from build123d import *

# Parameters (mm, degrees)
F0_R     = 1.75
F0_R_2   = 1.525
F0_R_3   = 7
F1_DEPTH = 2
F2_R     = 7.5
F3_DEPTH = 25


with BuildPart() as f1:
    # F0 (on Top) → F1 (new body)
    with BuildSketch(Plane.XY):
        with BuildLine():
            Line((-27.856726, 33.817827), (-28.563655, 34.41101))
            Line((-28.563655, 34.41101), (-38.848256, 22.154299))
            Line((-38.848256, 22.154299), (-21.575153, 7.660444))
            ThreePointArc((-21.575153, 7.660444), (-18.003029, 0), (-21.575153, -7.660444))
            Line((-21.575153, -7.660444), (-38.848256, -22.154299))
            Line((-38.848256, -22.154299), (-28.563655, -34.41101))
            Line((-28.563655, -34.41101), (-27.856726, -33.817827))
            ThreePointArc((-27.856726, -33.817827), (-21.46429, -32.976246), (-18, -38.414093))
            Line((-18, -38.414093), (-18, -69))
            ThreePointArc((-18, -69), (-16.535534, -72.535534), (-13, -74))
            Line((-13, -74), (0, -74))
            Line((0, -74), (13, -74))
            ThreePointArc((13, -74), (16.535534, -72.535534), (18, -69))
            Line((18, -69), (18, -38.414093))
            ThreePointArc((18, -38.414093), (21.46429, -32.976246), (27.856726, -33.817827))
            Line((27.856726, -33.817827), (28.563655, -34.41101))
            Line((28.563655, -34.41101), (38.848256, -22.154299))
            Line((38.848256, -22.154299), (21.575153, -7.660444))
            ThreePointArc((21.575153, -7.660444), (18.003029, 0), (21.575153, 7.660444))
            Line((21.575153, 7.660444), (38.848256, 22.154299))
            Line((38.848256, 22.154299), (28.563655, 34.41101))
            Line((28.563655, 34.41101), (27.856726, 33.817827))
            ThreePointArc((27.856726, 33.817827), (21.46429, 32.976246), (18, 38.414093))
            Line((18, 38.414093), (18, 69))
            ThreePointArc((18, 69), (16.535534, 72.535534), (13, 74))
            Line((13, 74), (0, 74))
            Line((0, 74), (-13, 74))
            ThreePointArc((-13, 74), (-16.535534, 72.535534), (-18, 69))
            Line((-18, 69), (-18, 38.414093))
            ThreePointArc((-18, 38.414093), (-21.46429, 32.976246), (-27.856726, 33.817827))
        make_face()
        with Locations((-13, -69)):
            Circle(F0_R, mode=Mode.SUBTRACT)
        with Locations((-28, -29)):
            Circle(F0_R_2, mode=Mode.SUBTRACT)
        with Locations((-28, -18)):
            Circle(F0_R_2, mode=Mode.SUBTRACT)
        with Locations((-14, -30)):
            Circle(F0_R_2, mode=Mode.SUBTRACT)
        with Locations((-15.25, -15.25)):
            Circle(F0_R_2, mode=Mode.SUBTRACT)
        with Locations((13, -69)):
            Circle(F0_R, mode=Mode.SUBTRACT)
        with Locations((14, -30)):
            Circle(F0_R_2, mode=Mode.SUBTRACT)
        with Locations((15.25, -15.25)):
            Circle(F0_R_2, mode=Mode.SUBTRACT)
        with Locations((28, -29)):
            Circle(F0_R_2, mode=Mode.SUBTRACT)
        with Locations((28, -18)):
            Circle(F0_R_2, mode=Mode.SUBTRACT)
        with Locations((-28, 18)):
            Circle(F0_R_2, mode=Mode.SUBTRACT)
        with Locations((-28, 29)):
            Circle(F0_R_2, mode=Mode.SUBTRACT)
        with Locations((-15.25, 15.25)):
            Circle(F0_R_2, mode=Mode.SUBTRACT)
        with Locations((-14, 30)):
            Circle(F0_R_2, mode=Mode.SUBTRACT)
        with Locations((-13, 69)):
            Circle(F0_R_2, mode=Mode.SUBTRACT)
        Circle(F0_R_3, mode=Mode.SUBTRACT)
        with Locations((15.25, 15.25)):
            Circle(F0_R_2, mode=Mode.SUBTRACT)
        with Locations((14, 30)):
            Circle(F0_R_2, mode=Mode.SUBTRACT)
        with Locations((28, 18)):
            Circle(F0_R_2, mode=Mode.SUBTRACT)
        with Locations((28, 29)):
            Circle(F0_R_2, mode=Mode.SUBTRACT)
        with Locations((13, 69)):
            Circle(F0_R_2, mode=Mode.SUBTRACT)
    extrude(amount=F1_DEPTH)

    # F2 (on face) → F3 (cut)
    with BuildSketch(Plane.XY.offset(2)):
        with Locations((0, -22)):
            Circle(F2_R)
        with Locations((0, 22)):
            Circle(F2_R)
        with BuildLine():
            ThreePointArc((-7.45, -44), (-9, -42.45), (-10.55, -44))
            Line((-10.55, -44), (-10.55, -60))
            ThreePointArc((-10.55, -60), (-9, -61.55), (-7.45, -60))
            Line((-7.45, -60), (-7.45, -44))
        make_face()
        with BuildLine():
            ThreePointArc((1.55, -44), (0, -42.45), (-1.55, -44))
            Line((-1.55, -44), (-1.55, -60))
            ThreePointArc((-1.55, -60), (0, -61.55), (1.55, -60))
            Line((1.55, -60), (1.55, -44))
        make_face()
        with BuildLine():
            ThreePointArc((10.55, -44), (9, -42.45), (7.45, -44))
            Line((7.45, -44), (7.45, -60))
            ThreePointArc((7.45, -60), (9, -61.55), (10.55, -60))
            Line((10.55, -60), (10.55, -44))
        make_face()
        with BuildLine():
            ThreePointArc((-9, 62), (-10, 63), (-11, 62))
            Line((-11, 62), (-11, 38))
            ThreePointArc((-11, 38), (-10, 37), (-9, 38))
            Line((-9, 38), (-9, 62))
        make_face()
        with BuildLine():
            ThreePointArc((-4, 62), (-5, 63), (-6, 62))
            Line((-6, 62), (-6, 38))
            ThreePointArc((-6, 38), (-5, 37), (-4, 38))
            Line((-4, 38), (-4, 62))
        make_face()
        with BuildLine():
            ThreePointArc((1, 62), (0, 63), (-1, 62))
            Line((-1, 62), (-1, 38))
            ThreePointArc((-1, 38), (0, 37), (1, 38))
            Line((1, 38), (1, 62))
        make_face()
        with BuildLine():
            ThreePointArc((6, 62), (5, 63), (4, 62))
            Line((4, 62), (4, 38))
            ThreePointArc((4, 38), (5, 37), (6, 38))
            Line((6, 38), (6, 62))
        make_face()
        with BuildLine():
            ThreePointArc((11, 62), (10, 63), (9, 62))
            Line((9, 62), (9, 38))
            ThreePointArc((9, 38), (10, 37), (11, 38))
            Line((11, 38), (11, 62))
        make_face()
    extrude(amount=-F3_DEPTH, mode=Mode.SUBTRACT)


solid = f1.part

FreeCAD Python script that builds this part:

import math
import FreeCAD as App
import Part
import Sketcher

V = App.Vector
Q = App.Units.Quantity

doc = App.newDocument("Part")
params = doc.addObject("Spreadsheet::Sheet", "Params")
for row, (alias, value) in enumerate([
    ("sketch1_diameter", "14 mm"),
    ("sketch1_radius", "9.999999 mm"),
    ("sketch1_radius2", "5.999999 mm"),
    ("sketch1_radius3", "5 mm"),
    ("sketch1_diameter2", "3.5 mm"),
    ("pad1_length", "2 mm"),
    ("sketch2_diameter", "15 mm"),
    ("sketch2_radius", "1 mm"),
    ("sketch2_height", "16 mm"),
    ("sketch2_height2", "24 mm"),
    ("sketch2_radius2", "1.55 mm"),
    ("pocket1_length", "25 mm"),
], start=1):
    params.set(f"A{row}", alias)
    params.set(f"B{row}", "=" + value)
    params.setAlias(f"B{row}", alias)

body = doc.addObject("PartDesign::Body", "Body")

sketch1 = doc.addObject("Sketcher::SketchObject", "Sketch")
body.addObject(sketch1)
sketch1.AttachmentSupport = (doc.XY_Plane, [""])
sketch1.MapMode = "FlatFace"
sketch1.addGeometry([
    Part.LineSegment(V(-27.9, 33.8, 0), V(-28.6, 34.4, 0)),
    Part.LineSegment(V(-28.6, 34.4, 0), V(-38.8, 22.2, 0)),
    Part.LineSegment(V(-38.8, 22.2, 0), V(-21.6, 7.7, 0)),
    Part.ArcOfCircle(Part.Circle(V(-28, 0, 0), V(0, 0, 1), 10), math.radians(-50), math.radians(50)),
    Part.LineSegment(V(-21.6, -7.7, 0), V(-38.8, -22.2, 0)),
    Part.LineSegment(V(-38.8, -22.2, 0), V(-28.6, -34.4, 0)),
    Part.LineSegment(V(-28.6, -34.4, 0), V(-27.9, -33.8, 0)),
    Part.ArcOfCircle(Part.Circle(V(-24, -38.4, 0), V(0, 0, 1), 6), math.radians(0), math.radians(130)),
    Part.LineSegment(V(-18, -38.4, 0), V(-18, -69, 0)),
    Part.ArcOfCircle(Part.Circle(V(-13, -69, 0), V(0, 0, 1), 5), math.radians(180), math.radians(270)),
    Part.LineSegment(V(-13, -74, 0), V(13, -74, 0)),
    Part.ArcOfCircle(Part.Circle(V(13, -69, 0), V(0, 0, 1), 5), math.radians(-90), math.radians(0)),
    Part.LineSegment(V(18, -69, 0), V(18, -38.4, 0)),
    Part.ArcOfCircle(Part.Circle(V(24, -38.4, 0), V(0, 0, 1), 6), math.radians(50), math.radians(180)),
    Part.LineSegment(V(27.9, -33.8, 0), V(28.6, -34.4, 0)),
    Part.LineSegment(V(28.6, -34.4, 0), V(38.8, -22.2, 0)),
    Part.LineSegment(V(38.8, -22.2, 0), V(21.6, -7.7, 0)),
    Part.ArcOfCircle(Part.Circle(V(28, 0, 0), V(0, 0, 1), 10), math.radians(130), math.radians(230)),
    Part.LineSegment(V(21.6, 7.7, 0), V(38.8, 22.2, 0)),
    Part.LineSegment(V(38.8, 22.2, 0), V(28.6, 34.4, 0)),
    Part.LineSegment(V(28.6, 34.4, 0), V(27.9, 33.8, 0)),
    Part.ArcOfCircle(Part.Circle(V(24, 38.4, 0), V(0, 0, 1), 6), math.radians(180), math.radians(310)),
    Part.LineSegment(V(18, 38.4, 0), V(18, 69, 0)),
    Part.ArcOfCircle(Part.Circle(V(13, 69, 0), V(0, 0, 1), 5), math.radians(0), math.radians(90)),
    Part.LineSegment(V(13, 74, 0), V(-13, 74, 0)),
    Part.ArcOfCircle(Part.Circle(V(-13, 69, 0), V(0, 0, 1), 5), math.radians(90), math.radians(180)),
    Part.LineSegment(V(-18, 69, 0), V(-18, 38.4, 0)),
    Part.ArcOfCircle(Part.Circle(V(-24, 38.4, 0), V(0, 0, 1), 6), math.radians(-130), math.radians(0)),
    Part.Circle(V(-13, -69, 0), V(0, 0, 1), 1.8),
    Part.Circle(V(-28, -29, 0), V(0, 0, 1), 1.5),
    Part.Circle(V(-28, -18, 0), V(0, 0, 1), 1.5),
    Part.Circle(V(-15.2, -15.2, 0), V(0, 0, 1), 1.5),
    Part.Circle(V(-14, -30, 0), V(0, 0, 1), 1.5),
    Part.Circle(V(13, -69, 0), V(0, 0, 1), 1.8),
    Part.Circle(V(14, -30, 0), V(0, 0, 1), 1.5),
    Part.Circle(V(28, -29, 0), V(0, 0, 1), 1.5),
    Part.Circle(V(28, -18, 0), V(0, 0, 1), 1.5),
    Part.Circle(V(15.2, -15.2, 0), V(0, 0, 1), 1.5),
    Part.Circle(V(-15.2, 15.2, 0), V(0, 0, 1), 1.5),
    Part.Circle(V(-28, 18, 0), V(0, 0, 1), 1.5),
    Part.Circle(V(-28, 29, 0), V(0, 0, 1), 1.5),
    Part.Circle(V(0, 0, 0), V(0, 0, 1), 7),
    Part.Circle(V(-14, 30, 0), V(0, 0, 1), 1.5),
    Part.Circle(V(-13, 69, 0), V(0, 0, 1), 1.5),
    Part.Circle(V(14, 30, 0), V(0, 0, 1), 1.5),
    Part.Circle(V(15.2, 15.2, 0), V(0, 0, 1), 1.5),
    Part.Circle(V(28, 18, 0), V(0, 0, 1), 1.5),
    Part.Circle(V(28, 29, 0), V(0, 0, 1), 1.5),
    Part.Circle(V(13, 69, 0), V(0, 0, 1), 1.5),
], False)
sketch1.addConstraint([
    Sketcher.Constraint("Coincident", 0, 2, 1, 1),
    Sketcher.Constraint("Coincident", 1, 2, 2, 1),
    Sketcher.Constraint("Tangent", 2, 2, 3, 2),
    Sketcher.Constraint("Tangent", 3, 1, 4, 1),
    Sketcher.Constraint("Coincident", 4, 2, 5, 1),
    Sketcher.Constraint("Coincident", 5, 2, 6, 1),
    Sketcher.Constraint("Tangent", 6, 2, 7, 2),
    Sketcher.Constraint("Tangent", 7, 1, 8, 1),
    Sketcher.Constraint("Tangent", 8, 2, 9, 1),
    Sketcher.Constraint("Tangent", 9, 2, 10, 1),
    Sketcher.Constraint("Tangent", 10, 2, 11, 1),
    Sketcher.Constraint("Tangent", 11, 2, 12, 1),
    Sketcher.Constraint("Tangent", 12, 2, 13, 2),
    Sketcher.Constraint("Tangent", 13, 1, 14, 1),
    Sketcher.Constraint("Coincident", 14, 2, 15, 1),
    Sketcher.Constraint("Coincident", 15, 2, 16, 1),
    Sketcher.Constraint("Tangent", 16, 2, 17, 2),
    Sketcher.Constraint("Tangent", 17, 1, 18, 1),
    Sketcher.Constraint("Coincident", 18, 2, 19, 1),
    Sketcher.Constraint("Coincident", 19, 2, 20, 1),
    Sketcher.Constraint("Tangent", 20, 2, 21, 2),
    Sketcher.Constraint("Tangent", 21, 1, 22, 1),
    Sketcher.Constraint("Tangent", 22, 2, 23, 1),
    Sketcher.Constraint("Tangent", 23, 2, 24, 1),
    Sketcher.Constraint("Tangent", 24, 2, 25, 1),
    Sketcher.Constraint("Tangent", 25, 2, 26, 1),
    Sketcher.Constraint("Tangent", 26, 2, 27, 2),
    Sketcher.Constraint("Tangent", 27, 1, 0, 1),
    Sketcher.Constraint("Vertical", 8),
    Sketcher.Constraint("Horizontal", 10),
    Sketcher.Constraint("Vertical", 12),
    Sketcher.Constraint("Vertical", 22),
    Sketcher.Constraint("Horizontal", 24),
    Sketcher.Constraint("Vertical", 26),
    Sketcher.Constraint("Coincident", 41, 3, -1, 1),
    Sketcher.Constraint("Coincident", 28, 3, 9, 3),
    Sketcher.Constraint("Coincident", 33, 3, 11, 3),
    Sketcher.Constraint("Coincident", 43, 3, 25, 3),
    Sketcher.Constraint("Coincident", 48, 3, 23, 3),
    Sketcher.Constraint("Equal", 9, 11),
    Sketcher.Constraint("Equal", 7, 13),
    Sketcher.Constraint("Equal", 3, 17),
    Sketcher.Constraint("Equal", 13, 21),
    Sketcher.Constraint("Equal", 11, 23),
    Sketcher.Constraint("Equal", 23, 25),
    Sketcher.Constraint("Equal", 21, 27),
    Sketcher.Constraint("Equal", 29, 30),
    Sketcher.Constraint("Equal", 30, 31),
    Sketcher.Constraint("Equal", 31, 32),
    Sketcher.Constraint("Equal", 28, 33),
    Sketcher.Constraint("Equal", 32, 34),
    Sketcher.Constraint("Equal", 34, 35),
    Sketcher.Constraint("Equal", 35, 36),
    Sketcher.Constraint("Equal", 36, 37),
    Sketcher.Constraint("Equal", 37, 38),
    Sketcher.Constraint("Equal", 38, 39),
    Sketcher.Constraint("Equal", 39, 40),
    Sketcher.Constraint("Equal", 40, 42),
    Sketcher.Constraint("Equal", 42, 43),
    Sketcher.Constraint("Equal", 43, 44),
    Sketcher.Constraint("Equal", 44, 45),
    Sketcher.Constraint("Equal", 45, 46),
    Sketcher.Constraint("Equal", 46, 47),
    Sketcher.Constraint("Equal", 47, 48),
    Sketcher.Constraint("Symmetric", 3, 3, 17, 3, -1, 1),
    Sketcher.Constraint("Symmetric", 7, 3, 21, 3, -1, 1),
    Sketcher.Constraint("Symmetric", 11, 3, 25, 3, -1, 1),
    Sketcher.Constraint("Symmetric", 37, 3, 38, 3, -1, 1),
    Sketcher.Constraint("Symmetric", 36, 3, 39, 3, -1, 1),
    Sketcher.Constraint("Symmetric", 35, 3, 40, 3, -1, 1),
    Sketcher.Constraint("Symmetric", 34, 3, 42, 3, -1, 1),
    Sketcher.Constraint("Symmetric", 32, 3, 44, 3, -1, 1),
    Sketcher.Constraint("Symmetric", 31, 3, 45, 3, -1, 1),
    Sketcher.Constraint("Symmetric", 30, 3, 46, 3, -1, 1),
    Sketcher.Constraint("Symmetric", 29, 3, 47, 3, -1, 1),
    Sketcher.Constraint("Symmetric", 0, 2, 14, 2, -1, 1),
    Sketcher.Constraint("Symmetric", 1, 2, 15, 2, -1, 1),
    Sketcher.Constraint("Symmetric", 4, 2, 18, 2, -1, 1),
    Sketcher.Constraint("Symmetric", 5, 2, 19, 2, -1, 1),
    Sketcher.Constraint("Symmetric", 7, 3, 13, 3, -2),
    Sketcher.Constraint("Symmetric", 32, 3, 34, 3, -2),
    Sketcher.Constraint("Symmetric", 29, 3, 35, 3, -2),
    Sketcher.Constraint("Symmetric", 30, 3, 36, 3, -2),
    Sketcher.Constraint("Symmetric", 31, 3, 37, 3, -2),
    Sketcher.Constraint("Symmetric", 5, 2, 14, 2, -2),
    Sketcher.Constraint("Symmetric", 4, 2, 15, 2, -2),
    Sketcher.Constraint("PointOnObject", 3, 3, -1),
    Sketcher.Constraint("Perpendicular", 0, 1),
    Sketcher.Constraint("Perpendicular", 1, 2),
    Sketcher.Constraint("Perpendicular", 5, 6),
    Sketcher.Constraint("Vertical", 29, 3, 30, 3),
    Sketcher.Constraint("Diameter", 41, 14.0),
    Sketcher.Constraint("Radius", 3, 9.999999),
    Sketcher.Constraint("Radius", 7, 5.999999),
    Sketcher.Constraint("Radius", 9, 5.0),
    Sketcher.Constraint("Diameter", 28, 3.5),
    Sketcher.Constraint("Diameter", 29, 3.05),
    Sketcher.Constraint("DistanceX", 10, 1, 10, 2, 26.0),
    Sketcher.Constraint("Angle", 1, Q("-129.999998 deg")),
    Sketcher.Constraint("Distance", 1, 15.999999),
    Sketcher.Constraint("DistanceY", 9, 3, -1, 1, 69.0),
    Sketcher.Constraint("DistanceX", 29, 3, -1, 1, 28.0),
    Sketcher.Constraint("DistanceY", 29, 3, -1, 1, 29.0),
    Sketcher.Constraint("DistanceY", 30, 3, -1, 1, 18.0),
    Sketcher.Constraint("DistanceX", 32, 3, -1, 1, 14.0),
    Sketcher.Constraint("DistanceY", 32, 3, -1, 1, 30.0),
    Sketcher.Constraint("DistanceY", 31, 3, 38, 3, 30.5),
    Sketcher.Constraint("DistanceX", 38, 3, 37, 3, 30.5),
    Sketcher.Constraint("DistanceY", -1, 1, 1, 2, 22.154299),
    Sketcher.Constraint("Distance", 0, 0.92283),
])
sketch1.setExpression("Constraints[91]", "Params.sketch1_diameter")
sketch1.setExpression("Constraints[92]", "Params.sketch1_radius")
sketch1.setExpression("Constraints[93]", "Params.sketch1_radius2")
sketch1.setExpression("Constraints[94]", "Params.sketch1_radius3")
sketch1.setExpression("Constraints[95]", "Params.sketch1_diameter2")
pad1 = doc.addObject("PartDesign::Pad", "Pad")
body.addObject(pad1)
pad1.Profile = sketch1
pad1.setExpression("Length", "Params.pad1_length")

sketch2 = doc.addObject("Sketcher::SketchObject", "Sketch001")
body.addObject(sketch2)
sketch2.AttachmentSupport = (doc.XY_Plane, [""])
sketch2.MapMode = "FlatFace"
sketch2.AttachmentOffset = App.Placement(V(0, 0, 2), App.Rotation())
sketch2.addGeometry([
    Part.Circle(V(0, -22, 0), V(0, 0, 1), 7.5),
    Part.Circle(V(0, 22, 0), V(0, 0, 1), 7.5),
    Part.ArcOfCircle(Part.Circle(V(-9, -44, 0), V(0, 0, 1), 1.6), math.radians(0), math.radians(180)),
    Part.LineSegment(V(-10.6, -44, 0), V(-10.6, -60, 0)),
    Part.ArcOfCircle(Part.Circle(V(-9, -60, 0), V(0, 0, 1), 1.6), math.radians(180), math.radians(360)),
    Part.LineSegment(V(-7.5, -60, 0), V(-7.5, -44, 0)),
    Part.ArcOfCircle(Part.Circle(V(0, -44, 0), V(0, 0, 1), 1.6), math.radians(0), math.radians(180)),
    Part.LineSegment(V(-1.6, -44, 0), V(-1.6, -60, 0)),
    Part.ArcOfCircle(Part.Circle(V(0, -60, 0), V(0, 0, 1), 1.6), math.radians(180), math.radians(360)),
    Part.LineSegment(V(1.6, -60, 0), V(1.6, -44, 0)),
    Part.ArcOfCircle(Part.Circle(V(9, -44, 0), V(0, 0, 1), 1.6), math.radians(0), math.radians(180)),
    Part.LineSegment(V(7.5, -44, 0), V(7.5, -60, 0)),
    Part.ArcOfCircle(Part.Circle(V(9, -60, 0), V(0, 0, 1), 1.6), math.radians(180), math.radians(360)),
    Part.LineSegment(V(10.6, -60, 0), V(10.6, -44, 0)),
    Part.ArcOfCircle(Part.Circle(V(-10, 62, 0), V(0, 0, 1), 1), math.radians(0), math.radians(180)),
    Part.LineSegment(V(-11, 62, 0), V(-11, 38, 0)),
    Part.ArcOfCircle(Part.Circle(V(-10, 38, 0), V(0, 0, 1), 1), math.radians(180), math.radians(360)),
    Part.LineSegment(V(-9, 38, 0), V(-9, 62, 0)),
    Part.ArcOfCircle(Part.Circle(V(-5, 62, 0), V(0, 0, 1), 1), math.radians(0), math.radians(180)),
    Part.LineSegment(V(-6, 62, 0), V(-6, 38, 0)),
    Part.ArcOfCircle(Part.Circle(V(-5, 38, 0), V(0, 0, 1), 1), math.radians(180), math.radians(360)),
    Part.LineSegment(V(-4, 38, 0), V(-4, 62, 0)),
    Part.ArcOfCircle(Part.Circle(V(0, 62, 0), V(0, 0, 1), 1), math.radians(0), math.radians(180)),
    Part.LineSegment(V(-1, 62, 0), V(-1, 38, 0)),
    Part.ArcOfCircle(Part.Circle(V(0, 38, 0), V(0, 0, 1), 1), math.radians(180), math.radians(360)),
    Part.LineSegment(V(1, 38, 0), V(1, 62, 0)),
    Part.ArcOfCircle(Part.Circle(V(5, 62, 0), V(0, 0, 1), 1), math.radians(0), math.radians(180)),
    Part.LineSegment(V(4, 62, 0), V(4, 38, 0)),
    Part.ArcOfCircle(Part.Circle(V(5, 38, 0), V(0, 0, 1), 1), math.radians(180), math.radians(360)),
    Part.LineSegment(V(6, 38, 0), V(6, 62, 0)),
    Part.ArcOfCircle(Part.Circle(V(10, 62, 0), V(0, 0, 1), 1), math.radians(0), math.radians(180)),
    Part.LineSegment(V(9, 62, 0), V(9, 38, 0)),
    Part.ArcOfCircle(Part.Circle(V(10, 38, 0), V(0, 0, 1), 1), math.radians(180), math.radians(360)),
    Part.LineSegment(V(11, 38, 0), V(11, 62, 0)),
], False)
sketch2.addConstraint([
    Sketcher.Constraint("Tangent", 2, 2, 3, 1),
    Sketcher.Constraint("Tangent", 3, 2, 4, 1),
    Sketcher.Constraint("Tangent", 4, 2, 5, 1),
    Sketcher.Constraint("Tangent", 5, 2, 2, 1),
    Sketcher.Constraint("Tangent", 6, 2, 7, 1),
    Sketcher.Constraint("Tangent", 7, 2, 8, 1),
    Sketcher.Constraint("Tangent", 8, 2, 9, 1),
    Sketcher.Constraint("Tangent", 9, 2, 6, 1),
    Sketcher.Constraint("Tangent", 10, 2, 11, 1),
    Sketcher.Constraint("Tangent", 11, 2, 12, 1),
    Sketcher.Constraint("Tangent", 12, 2, 13, 1),
    Sketcher.Constraint("Tangent", 13, 2, 10, 1),
    Sketcher.Constraint("Tangent", 14, 2, 15, 1),
    Sketcher.Constraint("Tangent", 15, 2, 16, 1),
    Sketcher.Constraint("Tangent", 16, 2, 17, 1),
    Sketcher.Constraint("Tangent", 17, 2, 14, 1),
    Sketcher.Constraint("Tangent", 18, 2, 19, 1),
    Sketcher.Constraint("Tangent", 19, 2, 20, 1),
    Sketcher.Constraint("Tangent", 20, 2, 21, 1),
    Sketcher.Constraint("Tangent", 21, 2, 18, 1),
    Sketcher.Constraint("Tangent", 22, 2, 23, 1),
    Sketcher.Constraint("Tangent", 23, 2, 24, 1),
    Sketcher.Constraint("Tangent", 24, 2, 25, 1),
    Sketcher.Constraint("Tangent", 25, 2, 22, 1),
    Sketcher.Constraint("Tangent", 26, 2, 27, 1),
    Sketcher.Constraint("Tangent", 27, 2, 28, 1),
    Sketcher.Constraint("Tangent", 28, 2, 29, 1),
    Sketcher.Constraint("Tangent", 29, 2, 26, 1),
    Sketcher.Constraint("Tangent", 30, 2, 31, 1),
    Sketcher.Constraint("Tangent", 31, 2, 32, 1),
    Sketcher.Constraint("Tangent", 32, 2, 33, 1),
    Sketcher.Constraint("Tangent", 33, 2, 30, 1),
    Sketcher.Constraint("Vertical", 3),
    Sketcher.Constraint("Vertical", 5),
    Sketcher.Constraint("Vertical", 7),
    Sketcher.Constraint("Vertical", 9),
    Sketcher.Constraint("Vertical", 11),
    Sketcher.Constraint("Vertical", 13),
    Sketcher.Constraint("Vertical", 15),
    Sketcher.Constraint("Vertical", 17),
    Sketcher.Constraint("Vertical", 19),
    Sketcher.Constraint("Vertical", 21),
    Sketcher.Constraint("Vertical", 23),
    Sketcher.Constraint("Vertical", 25),
    Sketcher.Constraint("Vertical", 27),
    Sketcher.Constraint("Vertical", 29),
    Sketcher.Constraint("Vertical", 31),
    Sketcher.Constraint("Vertical", 33),
    Sketcher.Constraint("Equal", 0, 1),
    Sketcher.Constraint("Equal", 4, 6),
    Sketcher.Constraint("Equal", 8, 10),
    Sketcher.Constraint("Equal", 16, 18),
    Sketcher.Constraint("Equal", 20, 22),
    Sketcher.Constraint("Equal", 24, 26),
    Sketcher.Constraint("Equal", 28, 30),
    Sketcher.Constraint("Symmetric", 0, 3, 1, 3, -1, 1),
    Sketcher.Constraint("Symmetric", 2, 3, 10, 3, -2),
    Sketcher.Constraint("Symmetric", 18, 3, 26, 3, -2),
    Sketcher.Constraint("Symmetric", 14, 3, 30, 3, -2),
    Sketcher.Constraint("PointOnObject", 0, 3, -2),
    Sketcher.Constraint("PointOnObject", 6, 3, -2),
    Sketcher.Constraint("PointOnObject", 22, 3, -2),
    Sketcher.Constraint("Horizontal", 2, 3, 6, 3),
    Sketcher.Constraint("Horizontal", 4, 3, 8, 3),
    Sketcher.Constraint("Horizontal", 8, 3, 12, 3),
    Sketcher.Constraint("Horizontal", 14, 3, 18, 3),
    Sketcher.Constraint("Horizontal", 16, 3, 20, 3),
    Sketcher.Constraint("Horizontal", 18, 3, 22, 3),
    Sketcher.Constraint("Horizontal", 20, 3, 24, 3),
    Sketcher.Constraint("Horizontal", 24, 3, 28, 3),
    Sketcher.Constraint("Horizontal", 28, 3, 32, 3),
    Sketcher.Constraint("Vertical", 4, 3, 16, 2),
    Sketcher.Constraint("Diameter", 0, 15.0),
    Sketcher.Constraint("Radius", 14, 1.0),
    Sketcher.Constraint("DistanceY", 3, 2, 3, 1, 16.0),
    Sketcher.Constraint("DistanceY", 15, 2, 15, 1, 24.0),
    Sketcher.Constraint("Radius", 2, 1.55),
    Sketcher.Constraint("DistanceY", 0, 3, -1, 1, 22.0),
    Sketcher.Constraint("DistanceX", 2, 3, -1, 1, 9.0),
    Sketcher.Constraint("DistanceY", 2, 3, -1, 1, 44.0),
    Sketcher.Constraint("DistanceY", -1, 1, 14, 3, 62.0),
    Sketcher.Constraint("DistanceX", 18, 3, -1, 1, 5.0),
])
sketch2.setExpression("Constraints[72]", "Params.sketch2_diameter")
sketch2.setExpression("Constraints[73]", "Params.sketch2_radius")
sketch2.setExpression("Constraints[74]", "Params.sketch2_height")
sketch2.setExpression("Constraints[75]", "Params.sketch2_height2")
sketch2.setExpression("Constraints[76]", "Params.sketch2_radius2")
pocket1 = doc.addObject("PartDesign::Pocket", "Pocket")
body.addObject(pocket1)
pocket1.Profile = sketch2
pocket1.setExpression("Length", "Params.pocket1_length")

doc.recompute()
